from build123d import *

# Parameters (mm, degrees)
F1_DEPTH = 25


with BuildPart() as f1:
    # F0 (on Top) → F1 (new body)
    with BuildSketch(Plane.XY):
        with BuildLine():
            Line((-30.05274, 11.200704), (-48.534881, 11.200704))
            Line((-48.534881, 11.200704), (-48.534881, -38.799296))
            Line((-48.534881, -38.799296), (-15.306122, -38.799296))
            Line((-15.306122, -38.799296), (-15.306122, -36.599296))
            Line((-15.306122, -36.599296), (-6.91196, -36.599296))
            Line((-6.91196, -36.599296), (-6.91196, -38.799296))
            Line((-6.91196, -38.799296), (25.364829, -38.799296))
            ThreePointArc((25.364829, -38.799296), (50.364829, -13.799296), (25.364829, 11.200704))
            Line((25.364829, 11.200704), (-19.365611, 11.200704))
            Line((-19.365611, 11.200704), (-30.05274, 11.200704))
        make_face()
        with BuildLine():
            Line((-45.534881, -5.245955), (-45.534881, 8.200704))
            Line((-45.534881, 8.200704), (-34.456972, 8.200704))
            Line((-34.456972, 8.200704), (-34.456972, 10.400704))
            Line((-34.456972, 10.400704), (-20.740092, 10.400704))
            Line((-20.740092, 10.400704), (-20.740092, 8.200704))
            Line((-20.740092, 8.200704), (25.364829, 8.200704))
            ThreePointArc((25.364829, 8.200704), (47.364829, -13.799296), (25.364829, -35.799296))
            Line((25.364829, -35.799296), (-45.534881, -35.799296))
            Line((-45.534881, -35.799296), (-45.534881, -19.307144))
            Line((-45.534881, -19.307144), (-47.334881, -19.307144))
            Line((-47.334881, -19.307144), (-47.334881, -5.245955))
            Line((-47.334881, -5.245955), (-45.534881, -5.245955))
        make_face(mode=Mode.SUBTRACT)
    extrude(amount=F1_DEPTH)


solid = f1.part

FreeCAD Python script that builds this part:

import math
import FreeCAD as App
import Part
import Sketcher

V = App.Vector
Q = App.Units.Quantity

doc = App.newDocument("Part")
params = doc.addObject("Spreadsheet::Sheet", "Params")
for row, (alias, value) in enumerate([
    ("sketch1_radius", "25 mm"),
    ("sketch1_radius2", "22 mm"),
    ("sketch1_width", "1.8 mm"),
    ("sketch1_height", "2.2 mm"),
    ("pad1_length", "25 mm"),
], start=1):
    params.set(f"A{row}", alias)
    params.set(f"B{row}", "=" + value)
    params.setAlias(f"B{row}", alias)

body = doc.addObject("PartDesign::Body", "Body")

# Sketch on XY plane
sketch1 = body.newObject("Sketcher::SketchObject", "Sketch")
sketch1.AttachmentSupport = (doc.getObject("XY_Plane"), [""])
sketch1.MapMode = "FlatFace"
sketch1.addGeometry(Part.LineSegment(V(-48.534881, 11.200704, 0), V(-48.534881, -38.799296, 0)), False)
sketch1.addGeometry(Part.LineSegment(V(-48.534881, -38.799296, 0), V(-15.306122, -38.799296, 0)), False)
sketch1.addGeometry(Part.LineSegment(V(-15.306122, -38.799296, 0), V(-15.306122, -36.599296, 0)), False)
sketch1.addGeometry(Part.LineSegment(V(-15.306122, -36.599296, 0), V(-6.91196, -36.599296, 0)), False)
sketch1.addGeometry(Part.LineSegment(V(-6.91196, -36.599296, 0), V(-6.91196, -38.799296, 0)), False)
sketch1.addGeometry(Part.LineSegment(V(-6.91196, -38.799296, 0), V(25.364829, -38.799296, 0)), False)
sketch1.addGeometry(Part.ArcOfCircle(Part.Circle(V(25.364829, -13.799296, 0), V(0, 0, 1), 25), math.radians(-90), math.radians(90)), False)
sketch1.addGeometry(Part.LineSegment(V(25.364829, 11.200704, 0), V(-48.534881, 11.200704, 0)), False)
sketch1.addGeometry(Part.LineSegment(V(-47.334881, -5.245955, 0), V(-45.534881, -5.245955, 0)), False)
sketch1.addGeometry(Part.LineSegment(V(-45.534881, -5.245955, 0), V(-45.534881, 8.200704, 0)), False)
sketch1.addGeometry(Part.LineSegment(V(-45.534881, 8.200704, 0), V(-34.456972, 8.200704, 0)), False)
sketch1.addGeometry(Part.LineSegment(V(-34.456972, 8.200704, 0), V(-34.456972, 10.400704, 0)), False)
sketch1.addGeometry(Part.LineSegment(V(-34.456972, 10.400704, 0), V(-20.740092, 10.400704, 0)), False)
sketch1.addGeometry(Part.LineSegment(V(-20.740092, 10.400704, 0), V(-20.740092, 8.200704, 0)), False)
sketch1.addGeometry(Part.LineSegment(V(-20.740092, 8.200704, 0), V(25.364829, 8.200704, 0)), False)
sketch1.addGeometry(Part.ArcOfCircle(Part.Circle(V(25.364829, -13.799296, 0), V(0, 0, 1), 22), math.radians(-90), math.radians(90)), False)
sketch1.addGeometry(Part.LineSegment(V(25.364829, -35.799296, 0), V(-45.534881, -35.799296, 0)), False)
sketch1.addGeometry(Part.LineSegment(V(-45.534881, -35.799296, 0), V(-45.534881, -19.307144, 0)), False)
sketch1.addGeometry(Part.LineSegment(V(-45.534881, -19.307144, 0), V(-47.334881, -19.307144, 0)), False)
sketch1.addGeometry(Part.LineSegment(V(-47.334881, -19.307144, 0), V(-47.334881, -5.245955, 0)), False)
sketch1.addConstraint(Sketcher.Constraint("Coincident", 0, 2, 1, 1))
sketch1.addConstraint(Sketcher.Constraint("Coincident", 1, 2, 2, 1))
sketch1.addConstraint(Sketcher.Constraint("Coincident", 2, 2, 3, 1))
sketch1.addConstraint(Sketcher.Constraint("Coincident", 3, 2, 4, 1))
sketch1.addConstraint(Sketcher.Constraint("Coincident", 4, 2, 5, 1))
sketch1.addConstraint(Sketcher.Constraint("Tangent", 5, 2, 6, 1))
sketch1.addConstraint(Sketcher.Constraint("Tangent", 6, 2, 7, 1))
sketch1.addConstraint(Sketcher.Constraint("Coincident", 7, 2, 0, 1))
sketch1.addConstraint(Sketcher.Constraint("Coincident", 8, 2, 9, 1))
sketch1.addConstraint(Sketcher.Constraint("Coincident", 9, 2, 10, 1))
sketch1.addConstraint(Sketcher.Constraint("Coincident", 10, 2, 11, 1))
sketch1.addConstraint(Sketcher.Constraint("Coincident", 11, 2, 12, 1))
sketch1.addConstraint(Sketcher.Constraint("Coincident", 12, 2, 13, 1))
sketch1.addConstraint(Sketcher.Constraint("Coincident", 13, 2, 14, 1))
sketch1.addConstraint(Sketcher.Constraint("Tangent", 14, 2, 15, 2))
sketch1.addConstraint(Sketcher.Constraint("Tangent", 15, 1, 16, 1))
sketch1.addConstraint(Sketcher.Constraint("Coincident", 16, 2, 17, 1))
sketch1.addConstraint(Sketcher.Constraint("Coincident", 17, 2, 18, 1))
sketch1.addConstraint(Sketcher.Constraint("Coincident", 18, 2, 19, 1))
sketch1.addConstraint(Sketcher.Constraint("Coincident", 19, 2, 8, 1))
sketch1.addConstraint(Sketcher.Constraint("Vertical", 0))
sketch1.addConstraint(Sketcher.Constraint("Horizontal", 1))
sketch1.addConstraint(Sketcher.Constraint("Vertical", 2))
sketch1.addConstraint(Sketcher.Constraint("Horizontal", 3))
sketch1.addConstraint(Sketcher.Constraint("Vertical", 4))
sketch1.addConstraint(Sketcher.Constraint("Horizontal", 5))
sketch1.addConstraint(Sketcher.Constraint("Horizontal", 7))
sketch1.addConstraint(Sketcher.Constraint("Horizontal", 8))
sketch1.addConstraint(Sketcher.Constraint("Vertical", 9))
sketch1.addConstraint(Sketcher.Constraint("Horizontal", 10))
sketch1.addConstraint(Sketcher.Constraint("Vertical", 11))
sketch1.addConstraint(Sketcher.Constraint("Horizontal", 12))
sketch1.addConstraint(Sketcher.Constraint("Vertical", 13))
sketch1.addConstraint(Sketcher.Constraint("Horizontal", 14))
sketch1.addConstraint(Sketcher.Constraint("Horizontal", 16))
sketch1.addConstraint(Sketcher.Constraint("Vertical", 17))
sketch1.addConstraint(Sketcher.Constraint("Horizontal", 18))
sketch1.addConstraint(Sketcher.Constraint("Vertical", 19))
sketch1.addConstraint(Sketcher.Constraint("Coincident", 15, 3, 6, 3))
sketch1.addConstraint(Sketcher.Constraint("Horizontal", 1, 2, 4, 2))
sketch1.addConstraint(Sketcher.Constraint("Horizontal", 10, 2, 13, 2))
sketch1.addConstraint(Sketcher.Constraint("Vertical", 9, 2, 16, 2))
sketch1.addConstraint(Sketcher.Constraint("Equal", 4, 11))
sketch1.addConstraint(Sketcher.Constraint("Radius", 6, Q("25 mm")))
sketch1.addConstraint(Sketcher.Constraint("Radius", 15, Q("22 mm")))
sketch1.addConstraint(Sketcher.Constraint("DistanceX", 8, 1, 8, 2, Q("1.8 mm")))
sketch1.addConstraint(Sketcher.Constraint("DistanceY", 2, 1, 2, 2, Q("2.2 mm")))
sketch1.addConstraint(Sketcher.Constraint("DistanceX", 7, 2, 8, 2, Q("3 mm")))
sketch1.addConstraint(Sketcher.Constraint("DistanceX", 1, 1, 1, 2, Q("33.228759 mm")))
sketch1.addConstraint(Sketcher.Constraint("DistanceX", 5, 1, 5, 2, Q("32.276789 mm")))
sketch1.addConstraint(Sketcher.Constraint("DistanceX", 7, 2, 7, 1, Q("73.89971 mm")))
sketch1.addConstraint(Sketcher.Constraint("DistanceX", 10, 1, 10, 2, Q("11.077909 mm")))
sketch1.addConstraint(Sketcher.Constraint("DistanceX", 12, 1, 12, 2, Q("13.71688 mm")))
sketch1.addConstraint(Sketcher.Constraint("DistanceY", 9, 1, 9, 2, Q("13.446659 mm")))
sketch1.addConstraint(Sketcher.Constraint("DistanceY", 17, 1, 17, 2, Q("16.492152 mm")))
sketch1.addConstraint(Sketcher.Constraint("DistanceX", -1, 1, 6, 3, Q("25.364829 mm")))
sketch1.addConstraint(Sketcher.Constraint("DistanceY", 6, 3, -1, 1, Q("13.799296 mm")))
sketch1.setExpression("Constraints[43]", "Params.sketch1_radius")
sketch1.setExpression("Constraints[44]", "Params.sketch1_radius2")
sketch1.setExpression("Constraints[45]", "Params.sketch1_width")
sketch1.setExpression("Constraints[46]", "Params.sketch1_height")
pad1 = body.newObject("PartDesign::Pad", "Pad")
pad1.Profile = sketch1
pad1.setExpression("Length", "Params.pad1_length")

doc.recompute()
